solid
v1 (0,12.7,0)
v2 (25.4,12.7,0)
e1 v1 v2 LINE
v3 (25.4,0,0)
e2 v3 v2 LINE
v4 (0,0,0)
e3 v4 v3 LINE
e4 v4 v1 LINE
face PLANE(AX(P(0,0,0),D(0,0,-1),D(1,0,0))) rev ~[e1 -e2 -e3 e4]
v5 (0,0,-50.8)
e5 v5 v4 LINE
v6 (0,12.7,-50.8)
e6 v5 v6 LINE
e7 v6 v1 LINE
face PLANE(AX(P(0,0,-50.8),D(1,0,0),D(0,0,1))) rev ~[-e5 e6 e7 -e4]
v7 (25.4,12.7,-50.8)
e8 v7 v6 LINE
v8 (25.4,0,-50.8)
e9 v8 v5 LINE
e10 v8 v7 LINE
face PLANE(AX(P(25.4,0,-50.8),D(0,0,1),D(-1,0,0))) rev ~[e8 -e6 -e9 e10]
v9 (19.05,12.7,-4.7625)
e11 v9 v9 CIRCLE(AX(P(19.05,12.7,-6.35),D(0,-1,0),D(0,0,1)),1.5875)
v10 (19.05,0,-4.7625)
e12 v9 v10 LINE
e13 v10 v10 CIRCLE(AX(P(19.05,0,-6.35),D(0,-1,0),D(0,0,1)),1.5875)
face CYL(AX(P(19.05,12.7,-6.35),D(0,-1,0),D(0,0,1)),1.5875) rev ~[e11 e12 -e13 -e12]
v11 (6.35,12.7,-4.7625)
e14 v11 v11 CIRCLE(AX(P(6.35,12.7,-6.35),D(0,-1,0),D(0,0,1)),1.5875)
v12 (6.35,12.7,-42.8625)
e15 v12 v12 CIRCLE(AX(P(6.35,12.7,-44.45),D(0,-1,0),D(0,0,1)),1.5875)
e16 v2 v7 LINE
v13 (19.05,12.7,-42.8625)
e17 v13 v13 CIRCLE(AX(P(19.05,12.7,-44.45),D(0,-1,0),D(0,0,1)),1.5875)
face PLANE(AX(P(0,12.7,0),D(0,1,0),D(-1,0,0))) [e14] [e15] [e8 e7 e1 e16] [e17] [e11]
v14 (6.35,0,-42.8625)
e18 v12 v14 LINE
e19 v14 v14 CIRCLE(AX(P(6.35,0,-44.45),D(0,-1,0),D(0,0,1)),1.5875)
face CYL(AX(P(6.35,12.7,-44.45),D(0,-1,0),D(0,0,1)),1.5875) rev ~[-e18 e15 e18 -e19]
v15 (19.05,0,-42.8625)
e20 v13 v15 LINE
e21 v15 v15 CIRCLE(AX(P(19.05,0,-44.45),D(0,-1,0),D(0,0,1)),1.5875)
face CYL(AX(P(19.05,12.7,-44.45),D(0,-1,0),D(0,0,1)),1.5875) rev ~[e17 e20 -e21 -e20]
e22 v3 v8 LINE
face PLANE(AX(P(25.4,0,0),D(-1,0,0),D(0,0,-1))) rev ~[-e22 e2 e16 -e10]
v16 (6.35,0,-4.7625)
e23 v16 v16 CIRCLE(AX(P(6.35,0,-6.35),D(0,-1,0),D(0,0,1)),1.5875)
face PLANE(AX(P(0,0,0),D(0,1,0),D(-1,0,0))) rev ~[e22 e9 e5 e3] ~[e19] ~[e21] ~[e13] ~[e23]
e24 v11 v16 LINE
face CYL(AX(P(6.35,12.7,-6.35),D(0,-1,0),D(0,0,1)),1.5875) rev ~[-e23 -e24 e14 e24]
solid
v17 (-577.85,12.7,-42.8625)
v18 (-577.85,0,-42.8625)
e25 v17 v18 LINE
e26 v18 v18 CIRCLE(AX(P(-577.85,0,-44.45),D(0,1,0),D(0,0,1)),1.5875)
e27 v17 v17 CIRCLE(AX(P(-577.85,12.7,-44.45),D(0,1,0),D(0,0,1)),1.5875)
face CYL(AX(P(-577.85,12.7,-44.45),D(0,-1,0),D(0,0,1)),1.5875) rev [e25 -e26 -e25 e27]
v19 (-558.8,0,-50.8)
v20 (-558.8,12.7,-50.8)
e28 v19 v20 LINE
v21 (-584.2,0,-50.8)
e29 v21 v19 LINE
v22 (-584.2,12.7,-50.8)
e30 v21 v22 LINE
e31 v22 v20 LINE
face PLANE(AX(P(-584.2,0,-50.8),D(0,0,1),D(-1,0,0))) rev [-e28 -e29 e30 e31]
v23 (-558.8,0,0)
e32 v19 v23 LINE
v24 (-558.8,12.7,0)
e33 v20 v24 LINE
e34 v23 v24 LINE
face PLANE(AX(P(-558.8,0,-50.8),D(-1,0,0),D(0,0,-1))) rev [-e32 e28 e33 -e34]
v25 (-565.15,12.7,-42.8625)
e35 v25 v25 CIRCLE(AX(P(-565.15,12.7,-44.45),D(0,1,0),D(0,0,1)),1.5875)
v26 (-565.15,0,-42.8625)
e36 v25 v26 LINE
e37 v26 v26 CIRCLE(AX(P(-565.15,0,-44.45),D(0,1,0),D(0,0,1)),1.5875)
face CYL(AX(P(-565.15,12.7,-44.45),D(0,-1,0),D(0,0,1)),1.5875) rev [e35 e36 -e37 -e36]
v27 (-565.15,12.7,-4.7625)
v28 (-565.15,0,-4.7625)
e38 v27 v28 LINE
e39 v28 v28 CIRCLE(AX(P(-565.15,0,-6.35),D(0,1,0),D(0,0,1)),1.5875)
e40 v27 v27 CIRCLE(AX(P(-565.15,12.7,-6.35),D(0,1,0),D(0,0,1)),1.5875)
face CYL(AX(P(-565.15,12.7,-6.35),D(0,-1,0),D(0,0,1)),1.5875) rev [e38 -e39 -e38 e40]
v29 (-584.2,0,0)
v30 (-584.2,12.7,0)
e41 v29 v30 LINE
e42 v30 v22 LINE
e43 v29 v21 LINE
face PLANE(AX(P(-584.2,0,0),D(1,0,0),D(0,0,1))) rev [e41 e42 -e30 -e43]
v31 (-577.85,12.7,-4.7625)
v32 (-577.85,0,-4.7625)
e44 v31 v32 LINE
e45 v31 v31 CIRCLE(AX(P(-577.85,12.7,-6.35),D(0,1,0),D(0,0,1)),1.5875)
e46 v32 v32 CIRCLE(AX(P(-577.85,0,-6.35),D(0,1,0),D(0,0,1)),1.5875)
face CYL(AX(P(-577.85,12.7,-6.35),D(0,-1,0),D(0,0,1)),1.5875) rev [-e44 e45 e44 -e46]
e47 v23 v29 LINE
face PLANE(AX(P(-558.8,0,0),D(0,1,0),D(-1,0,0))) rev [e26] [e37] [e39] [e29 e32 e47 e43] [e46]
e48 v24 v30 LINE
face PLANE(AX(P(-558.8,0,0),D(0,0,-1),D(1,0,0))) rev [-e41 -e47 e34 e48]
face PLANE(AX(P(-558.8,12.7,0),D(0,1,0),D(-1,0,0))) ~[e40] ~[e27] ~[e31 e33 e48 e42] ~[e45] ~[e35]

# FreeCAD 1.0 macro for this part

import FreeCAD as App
import Part
import Sketcher
Q = App.Units.Quantity


def add_polygon(sketch, points):
    """Adds a closed chain of lines whose ends are joined by coincident constraints."""
    first, n = sketch.GeometryCount, len(points)
    for a, b in zip(points, points[1:] + points[:1]):
        sketch.addGeometry(Part.LineSegment(App.Vector(*a, 0), App.Vector(*b, 0)), False)
    for i in range(n):
        sketch.addConstraint(Sketcher.Constraint("Coincident", first + i, 2, first + (i + 1) % n, 1))

doc = App.newDocument("Part")
body = doc.addObject("PartDesign::Body", "Body")
body.AllowCompound = True

sketch1 = body.newObject("Sketcher::SketchObject", "Sketch")
sketch1.AttachmentSupport = (doc.getObject("XZ_Plane"), [""])
sketch1.MapMode = "FlatFace"
add_polygon(sketch1, [(0, -51), (0, 0), (25, 0), (25, -51)])
sketch1.addConstraint([
    Sketcher.Constraint("Vertical", 0),
    Sketcher.Constraint("Horizontal", 1),
    Sketcher.Constraint("Vertical", 2),
    Sketcher.Constraint("Horizontal", 3),
    Sketcher.Constraint("Coincident", 0, 2, -1, 1),
    Sketcher.Constraint("DistanceX", 1, 1, 1, 2, Q("1 in")),
    Sketcher.Constraint("DistanceY", 0, 1, 0, 2, Q("2 in")),
])
pad1 = body.newObject("PartDesign::Pad", "Pad")
pad1.Profile = sketch1
pad1.Length = Q("0.5 in")
pad1.Reversed = True

sketch2 = body.newObject("Sketcher::SketchObject", "Sketch001")
sketch2.AttachmentSupport = (doc.getObject("XZ_Plane"), [""])
sketch2.MapMode = "FlatFace"
sketch2.AttachmentOffset = App.Placement(App.Vector(0, 0, -0.5 * 25.4), App.Rotation())
sketch2.addGeometry([
    Part.Circle(App.Vector(6.3, -6.3, 0), App.Vector(0, 0, 1), 1.6),
    Part.Circle(App.Vector(19.1, -6.3, 0), App.Vector(0, 0, 1), 1.6),
    Part.Circle(App.Vector(19.1, -44.5, 0), App.Vector(0, 0, 1), 1.6),
    Part.Circle(App.Vector(6.3, -44.5, 0), App.Vector(0, 0, 1), 1.6),
], False)
sketch2.addConstraint([
    Sketcher.Constraint("Equal", 0, 1),
    Sketcher.Constraint("Equal", 1, 2),
    Sketcher.Constraint("Equal", 2, 3),
    Sketcher.Constraint("Horizontal", 0, 3, 1, 3),
    Sketcher.Constraint("Horizontal", 2, 3, 3, 3),
    Sketcher.Constraint("Vertical", 1, 3, 2, 3),
    Sketcher.Constraint("Vertical", 0, 3, 3, 3),
    Sketcher.Constraint("Diameter", 0, Q("0.125 in")),
    Sketcher.Constraint("DistanceX", 0, 3, 1, 3, Q("0.5 in")),
    Sketcher.Constraint("DistanceY", 2, 3, 1, 3, Q("1.5 in")),
    Sketcher.Constraint("DistanceX", -1, 1, 0, 3, Q("0.25 in")),
    Sketcher.Constraint("DistanceY", 0, 3, -1, 1, Q("0.25 in")),
])
doc.recompute()
hole = body.newObject("PartDesign::Hole", "Hole")
hole.Profile = sketch2
hole.ThreadType = "None"
hole.Diameter = Q("0.125 in")
hole.DepthType = "ThroughAll"
hole.Reversed = True
doc.recompute()

datumplane = body.newObject("PartDesign::Plane", "DatumPlane")
datumplane.AttachmentSupport = (doc.getObject("YZ_Plane"), [""])
datumplane.MapMode = "FlatFace"
datumplane.AttachmentOffset = App.Placement(App.Vector(0, 0, -11 * 25.4), App.Rotation())
mirrored = body.newObject("PartDesign::Mirrored", "Mirrored")
mirrored.TransformMode = "Transform body"
mirrored.MirrorPlane = (datumplane, [""])
body.Tip = mirrored

doc.recompute()
